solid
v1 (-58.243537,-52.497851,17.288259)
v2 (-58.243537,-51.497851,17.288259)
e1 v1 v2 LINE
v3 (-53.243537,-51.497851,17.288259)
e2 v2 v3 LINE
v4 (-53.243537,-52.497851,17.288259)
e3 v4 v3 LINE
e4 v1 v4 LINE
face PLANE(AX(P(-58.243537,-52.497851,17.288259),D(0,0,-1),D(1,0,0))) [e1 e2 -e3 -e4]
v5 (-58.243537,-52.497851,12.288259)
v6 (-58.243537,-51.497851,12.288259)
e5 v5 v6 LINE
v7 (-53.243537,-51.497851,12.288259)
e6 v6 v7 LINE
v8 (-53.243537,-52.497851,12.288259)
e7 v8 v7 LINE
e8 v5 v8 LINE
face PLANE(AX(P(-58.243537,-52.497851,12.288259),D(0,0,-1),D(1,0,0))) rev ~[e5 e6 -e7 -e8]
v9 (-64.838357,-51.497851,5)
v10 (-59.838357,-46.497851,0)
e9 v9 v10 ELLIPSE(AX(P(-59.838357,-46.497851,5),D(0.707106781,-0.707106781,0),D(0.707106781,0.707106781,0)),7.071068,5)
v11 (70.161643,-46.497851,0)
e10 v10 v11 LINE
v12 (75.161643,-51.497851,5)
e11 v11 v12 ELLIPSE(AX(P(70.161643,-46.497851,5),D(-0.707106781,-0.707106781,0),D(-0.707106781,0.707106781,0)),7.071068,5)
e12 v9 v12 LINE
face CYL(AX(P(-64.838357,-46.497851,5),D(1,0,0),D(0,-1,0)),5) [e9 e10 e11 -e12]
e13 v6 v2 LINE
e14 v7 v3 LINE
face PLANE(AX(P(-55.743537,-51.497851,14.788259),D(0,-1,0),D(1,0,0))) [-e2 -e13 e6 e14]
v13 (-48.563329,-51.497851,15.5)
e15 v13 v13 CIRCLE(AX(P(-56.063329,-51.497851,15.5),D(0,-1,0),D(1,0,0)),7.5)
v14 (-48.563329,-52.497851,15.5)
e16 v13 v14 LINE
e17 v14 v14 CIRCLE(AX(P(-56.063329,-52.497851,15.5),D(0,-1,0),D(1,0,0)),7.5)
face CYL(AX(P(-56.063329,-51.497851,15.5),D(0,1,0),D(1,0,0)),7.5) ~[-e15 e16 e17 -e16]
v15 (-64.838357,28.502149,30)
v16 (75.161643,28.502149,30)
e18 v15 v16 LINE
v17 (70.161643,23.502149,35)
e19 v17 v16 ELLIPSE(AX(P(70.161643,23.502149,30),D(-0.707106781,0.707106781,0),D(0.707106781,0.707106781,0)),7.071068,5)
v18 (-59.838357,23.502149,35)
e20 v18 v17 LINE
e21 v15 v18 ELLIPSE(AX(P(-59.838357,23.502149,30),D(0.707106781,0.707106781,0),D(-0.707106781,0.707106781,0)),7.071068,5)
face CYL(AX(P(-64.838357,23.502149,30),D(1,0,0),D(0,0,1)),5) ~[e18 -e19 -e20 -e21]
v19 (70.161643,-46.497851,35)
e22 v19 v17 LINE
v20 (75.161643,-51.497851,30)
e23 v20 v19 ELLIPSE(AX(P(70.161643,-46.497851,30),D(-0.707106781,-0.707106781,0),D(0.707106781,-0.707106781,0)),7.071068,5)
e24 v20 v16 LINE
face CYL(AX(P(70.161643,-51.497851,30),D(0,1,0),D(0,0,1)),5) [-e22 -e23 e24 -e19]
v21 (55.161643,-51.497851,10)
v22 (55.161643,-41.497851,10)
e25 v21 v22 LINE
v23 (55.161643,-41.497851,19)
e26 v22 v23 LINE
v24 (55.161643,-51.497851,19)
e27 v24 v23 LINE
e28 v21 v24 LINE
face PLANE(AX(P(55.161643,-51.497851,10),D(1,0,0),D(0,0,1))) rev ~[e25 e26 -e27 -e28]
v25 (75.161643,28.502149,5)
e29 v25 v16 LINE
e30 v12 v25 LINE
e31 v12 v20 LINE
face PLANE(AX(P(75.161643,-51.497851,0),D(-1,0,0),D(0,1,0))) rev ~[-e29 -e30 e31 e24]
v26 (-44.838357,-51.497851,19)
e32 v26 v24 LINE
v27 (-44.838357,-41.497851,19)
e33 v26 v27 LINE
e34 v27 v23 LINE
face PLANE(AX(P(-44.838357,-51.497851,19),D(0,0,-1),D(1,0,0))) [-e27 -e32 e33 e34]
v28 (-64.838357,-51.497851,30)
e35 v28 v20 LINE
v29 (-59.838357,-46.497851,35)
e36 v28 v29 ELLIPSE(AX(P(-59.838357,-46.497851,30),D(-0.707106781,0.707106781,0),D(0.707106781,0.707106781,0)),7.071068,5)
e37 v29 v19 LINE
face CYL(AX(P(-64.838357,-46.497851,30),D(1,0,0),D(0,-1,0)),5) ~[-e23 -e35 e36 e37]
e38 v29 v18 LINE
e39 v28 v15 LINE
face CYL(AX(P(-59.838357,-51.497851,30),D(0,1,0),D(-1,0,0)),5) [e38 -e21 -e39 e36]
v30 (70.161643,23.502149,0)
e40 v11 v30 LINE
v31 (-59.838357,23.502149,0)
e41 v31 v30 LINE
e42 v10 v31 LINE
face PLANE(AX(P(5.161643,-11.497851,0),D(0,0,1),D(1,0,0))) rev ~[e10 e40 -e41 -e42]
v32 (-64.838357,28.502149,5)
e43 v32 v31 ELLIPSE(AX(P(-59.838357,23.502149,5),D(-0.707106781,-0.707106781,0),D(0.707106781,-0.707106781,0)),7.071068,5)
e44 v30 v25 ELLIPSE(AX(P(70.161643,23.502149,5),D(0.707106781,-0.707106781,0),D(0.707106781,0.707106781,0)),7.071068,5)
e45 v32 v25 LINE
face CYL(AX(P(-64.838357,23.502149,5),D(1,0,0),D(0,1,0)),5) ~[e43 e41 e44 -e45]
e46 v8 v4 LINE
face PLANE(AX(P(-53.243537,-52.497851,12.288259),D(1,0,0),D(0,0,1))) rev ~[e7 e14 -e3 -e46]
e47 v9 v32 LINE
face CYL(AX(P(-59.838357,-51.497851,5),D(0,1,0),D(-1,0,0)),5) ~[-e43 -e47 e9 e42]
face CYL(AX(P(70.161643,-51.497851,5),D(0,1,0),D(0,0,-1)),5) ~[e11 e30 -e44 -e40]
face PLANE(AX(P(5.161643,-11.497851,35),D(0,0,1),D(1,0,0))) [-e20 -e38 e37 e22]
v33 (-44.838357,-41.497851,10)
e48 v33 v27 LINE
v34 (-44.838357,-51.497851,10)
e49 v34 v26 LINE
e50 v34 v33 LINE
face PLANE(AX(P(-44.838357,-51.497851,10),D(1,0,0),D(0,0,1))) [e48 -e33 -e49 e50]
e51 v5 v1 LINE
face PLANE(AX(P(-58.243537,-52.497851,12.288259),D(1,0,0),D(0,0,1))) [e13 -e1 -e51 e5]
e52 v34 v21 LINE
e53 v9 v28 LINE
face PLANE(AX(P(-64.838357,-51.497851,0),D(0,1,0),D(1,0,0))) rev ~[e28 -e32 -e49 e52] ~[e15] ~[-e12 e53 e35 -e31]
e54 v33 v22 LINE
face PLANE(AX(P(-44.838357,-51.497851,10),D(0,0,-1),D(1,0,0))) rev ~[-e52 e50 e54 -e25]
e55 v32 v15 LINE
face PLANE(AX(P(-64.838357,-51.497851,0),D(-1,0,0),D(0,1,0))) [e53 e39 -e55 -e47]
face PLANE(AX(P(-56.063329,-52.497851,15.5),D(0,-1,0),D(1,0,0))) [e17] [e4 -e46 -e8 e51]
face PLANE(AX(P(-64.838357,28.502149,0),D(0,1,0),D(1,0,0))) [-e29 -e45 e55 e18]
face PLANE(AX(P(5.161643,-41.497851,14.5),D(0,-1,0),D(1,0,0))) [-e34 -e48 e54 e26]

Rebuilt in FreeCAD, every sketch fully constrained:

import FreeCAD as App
import Part
import Sketcher
from FreeCAD import Vector
Q = App.Units.Quantity


def edges_at(feature, points):
    """Names of the edges that pass closest to the given points."""
    edges = feature.Shape.Edges
    near = lambda p: min(range(len(edges)), key=lambda i: edges[i].distToShape(Part.Vertex(*p))[0])
    return sorted({f"Edge{near(p) + 1}" for p in points})

doc = App.newDocument("Part")
body = doc.addObject("PartDesign::Body", "Body")

# Sketch on XY plane
sketch1 = doc.addObject("Sketcher::SketchObject", "Sketch")
body.addObject(sketch1)
sketch1.AttachmentSupport = (doc.XY_Plane, [""])
sketch1.MapMode = "FlatFace"
sketch1.addGeometry([
    Part.LineSegment(Vector(-64.838357, 28.502149, 0), Vector(-64.838357, -51.497851, 0)),
    Part.LineSegment(Vector(-64.838357, -51.497851, 0), Vector(75.161643, -51.497851, 0)),
    Part.LineSegment(Vector(75.161643, -51.497851, 0), Vector(75.161643, 28.502149, 0)),
    Part.LineSegment(Vector(75.161643, 28.502149, 0), Vector(-64.838357, 28.502149, 0)),
], False)
sketch1.addConstraint([
    Sketcher.Constraint("Coincident", 0, 2, 1, 1),
    Sketcher.Constraint("Coincident", 1, 2, 2, 1),
    Sketcher.Constraint("Coincident", 2, 2, 3, 1),
    Sketcher.Constraint("Coincident", 3, 2, 0, 1),
    Sketcher.Constraint("Vertical", 0),
    Sketcher.Constraint("Horizontal", 1),
    Sketcher.Constraint("Vertical", 2),
    Sketcher.Constraint("Horizontal", 3),
    Sketcher.Constraint("DistanceX", 1, 1, 1, 2, Q("140 mm")),
    Sketcher.Constraint("DistanceY", 0, 2, 0, 1, Q("80 mm")),
    Sketcher.Constraint("DistanceY", 0, 2, -1, 1, Q("51.497851 mm")),
    Sketcher.Constraint("DistanceX", 0, 2, -1, 1, Q("64.838357 mm")),
])
pad1 = doc.addObject("PartDesign::Pad", "Pad")
body.addObject(pad1)
pad1.Profile = sketch1
pad1.Length = 35

# Sketch on XZ plane
sketch2 = doc.addObject("Sketcher::SketchObject", "Sketch001")
body.addObject(sketch2)
sketch2.AttachmentSupport = (doc.XZ_Plane, [""])
sketch2.MapMode = "FlatFace"
sketch2.AttachmentOffset = App.Placement(Vector(0, 0, 51.497851), App.Rotation())
sketch2.addGeometry([
    Part.LineSegment(Vector(-44.838357, 19, 0), Vector(-44.838357, 10, 0)),
    Part.LineSegment(Vector(-44.838357, 10, 0), Vector(55.161643, 10, 0)),
    Part.LineSegment(Vector(55.161643, 10, 0), Vector(55.161643, 19, 0)),
    Part.LineSegment(Vector(55.161643, 19, 0), Vector(-44.838357, 19, 0)),
], False)
sketch2.addConstraint([
    Sketcher.Constraint("Coincident", 0, 2, 1, 1),
    Sketcher.Constraint("Coincident", 1, 2, 2, 1),
    Sketcher.Constraint("Coincident", 2, 2, 3, 1),
    Sketcher.Constraint("Coincident", 3, 2, 0, 1),
    Sketcher.Constraint("Vertical", 0),
    Sketcher.Constraint("Horizontal", 1),
    Sketcher.Constraint("Vertical", 2),
    Sketcher.Constraint("Horizontal", 3),
    Sketcher.Constraint("DistanceX", 1, 1, 1, 2, Q("100 mm")),
    Sketcher.Constraint("DistanceY", 0, 2, 0, 1, Q("9 mm")),
    Sketcher.Constraint("DistanceY", -1, 1, 0, 2, Q("10 mm")),
    Sketcher.Constraint("DistanceX", 0, 2, -1, 1, Q("44.838357 mm")),
])
pocket1 = doc.addObject("PartDesign::Pocket", "Pocket")
body.addObject(pocket1)
pocket1.Profile = sketch2
pocket1.Length = 10
doc.recompute()

fillet = doc.addObject("PartDesign::Fillet", "Fillet")
body.addObject(fillet)
fillet.Base = (pocket1, edges_at(pocket1, [
    (75.162, -11.498, 0),
    (5.162, -51.498, 0),
    (5.162, 28.502, 0),
    (-64.838, -11.498, 0),
]))
fillet.Radius = 5
doc.recompute()

fillet2 = doc.addObject("PartDesign::Fillet", "Fillet001")
body.addObject(fillet2)
fillet2.Base = (fillet, edges_at(fillet, [
    (-64.838, -11.498, 35),
    (5.162, 28.502, 35),
    (5.162, -51.498, 35),
    (75.162, -11.498, 35),
]))
fillet2.Radius = 5

# Sketch on XZ plane
sketch3 = doc.addObject("Sketcher::SketchObject", "Sketch002")
body.addObject(sketch3)
sketch3.AttachmentSupport = (doc.XZ_Plane, [""])
sketch3.MapMode = "FlatFace"
sketch3.AttachmentOffset = App.Placement(Vector(0, 0, 51.497851), App.Rotation())
sketch3.addGeometry(Part.Circle(Vector(-56.063329, 15.5, 0), Vector(0, 0, 1), 7.5), False)
sketch3.addConstraint([
    Sketcher.Constraint("Diameter", 0, Q("15 mm")),
    Sketcher.Constraint("DistanceY", -1, 1, 0, 3, Q("15.5 mm")),
    Sketcher.Constraint("DistanceX", 0, 3, -1, 1, Q("56.063329 mm")),
])
pad2 = doc.addObject("PartDesign::Pad", "Pad001")
body.addObject(pad2)
pad2.Profile = sketch3
pad2.Length = 1

# Sketch on XZ plane
sketch4 = doc.addObject("Sketcher::SketchObject", "Sketch003")
body.addObject(sketch4)
sketch4.AttachmentSupport = (doc.XZ_Plane, [""])
sketch4.MapMode = "FlatFace"
sketch4.AttachmentOffset = App.Placement(Vector(0, 0, 52.497851), App.Rotation())
sketch4.addGeometry([
    Part.LineSegment(Vector(-58.243537, 17.288259, 0), Vector(-58.243537, 12.288259, 0)),
    Part.LineSegment(Vector(-58.243537, 12.288259, 0), Vector(-53.243537, 12.288259, 0)),
    Part.LineSegment(Vector(-53.243537, 12.288259, 0), Vector(-53.243537, 17.288259, 0)),
    Part.LineSegment(Vector(-53.243537, 17.288259, 0), Vector(-58.243537, 17.288259, 0)),
], False)
sketch4.addConstraint([
    Sketcher.Constraint("Coincident", 0, 2, 1, 1),
    Sketcher.Constraint("Coincident", 1, 2, 2, 1),
    Sketcher.Constraint("Coincident", 2, 2, 3, 1),
    Sketcher.Constraint("Coincident", 3, 2, 0, 1),
    Sketcher.Constraint("Vertical", 0),
    Sketcher.Constraint("Horizontal", 1),
    Sketcher.Constraint("Vertical", 2),
    Sketcher.Constraint("Horizontal", 3),
    Sketcher.Constraint("Equal", 3, 0),
    Sketcher.Constraint("DistanceX", 1, 1, 1, 2, Q("5 mm")),
    Sketcher.Constraint("DistanceY", -1, 1, 0, 2, Q("12.288259 mm")),
    Sketcher.Constraint("DistanceX", 0, 2, -1, 1, Q("58.243537 mm")),
])
pocket2 = doc.addObject("PartDesign::Pocket", "Pocket001")
body.addObject(pocket2)
pocket2.Profile = sketch4
pocket2.Length = 1

doc.recompute()
